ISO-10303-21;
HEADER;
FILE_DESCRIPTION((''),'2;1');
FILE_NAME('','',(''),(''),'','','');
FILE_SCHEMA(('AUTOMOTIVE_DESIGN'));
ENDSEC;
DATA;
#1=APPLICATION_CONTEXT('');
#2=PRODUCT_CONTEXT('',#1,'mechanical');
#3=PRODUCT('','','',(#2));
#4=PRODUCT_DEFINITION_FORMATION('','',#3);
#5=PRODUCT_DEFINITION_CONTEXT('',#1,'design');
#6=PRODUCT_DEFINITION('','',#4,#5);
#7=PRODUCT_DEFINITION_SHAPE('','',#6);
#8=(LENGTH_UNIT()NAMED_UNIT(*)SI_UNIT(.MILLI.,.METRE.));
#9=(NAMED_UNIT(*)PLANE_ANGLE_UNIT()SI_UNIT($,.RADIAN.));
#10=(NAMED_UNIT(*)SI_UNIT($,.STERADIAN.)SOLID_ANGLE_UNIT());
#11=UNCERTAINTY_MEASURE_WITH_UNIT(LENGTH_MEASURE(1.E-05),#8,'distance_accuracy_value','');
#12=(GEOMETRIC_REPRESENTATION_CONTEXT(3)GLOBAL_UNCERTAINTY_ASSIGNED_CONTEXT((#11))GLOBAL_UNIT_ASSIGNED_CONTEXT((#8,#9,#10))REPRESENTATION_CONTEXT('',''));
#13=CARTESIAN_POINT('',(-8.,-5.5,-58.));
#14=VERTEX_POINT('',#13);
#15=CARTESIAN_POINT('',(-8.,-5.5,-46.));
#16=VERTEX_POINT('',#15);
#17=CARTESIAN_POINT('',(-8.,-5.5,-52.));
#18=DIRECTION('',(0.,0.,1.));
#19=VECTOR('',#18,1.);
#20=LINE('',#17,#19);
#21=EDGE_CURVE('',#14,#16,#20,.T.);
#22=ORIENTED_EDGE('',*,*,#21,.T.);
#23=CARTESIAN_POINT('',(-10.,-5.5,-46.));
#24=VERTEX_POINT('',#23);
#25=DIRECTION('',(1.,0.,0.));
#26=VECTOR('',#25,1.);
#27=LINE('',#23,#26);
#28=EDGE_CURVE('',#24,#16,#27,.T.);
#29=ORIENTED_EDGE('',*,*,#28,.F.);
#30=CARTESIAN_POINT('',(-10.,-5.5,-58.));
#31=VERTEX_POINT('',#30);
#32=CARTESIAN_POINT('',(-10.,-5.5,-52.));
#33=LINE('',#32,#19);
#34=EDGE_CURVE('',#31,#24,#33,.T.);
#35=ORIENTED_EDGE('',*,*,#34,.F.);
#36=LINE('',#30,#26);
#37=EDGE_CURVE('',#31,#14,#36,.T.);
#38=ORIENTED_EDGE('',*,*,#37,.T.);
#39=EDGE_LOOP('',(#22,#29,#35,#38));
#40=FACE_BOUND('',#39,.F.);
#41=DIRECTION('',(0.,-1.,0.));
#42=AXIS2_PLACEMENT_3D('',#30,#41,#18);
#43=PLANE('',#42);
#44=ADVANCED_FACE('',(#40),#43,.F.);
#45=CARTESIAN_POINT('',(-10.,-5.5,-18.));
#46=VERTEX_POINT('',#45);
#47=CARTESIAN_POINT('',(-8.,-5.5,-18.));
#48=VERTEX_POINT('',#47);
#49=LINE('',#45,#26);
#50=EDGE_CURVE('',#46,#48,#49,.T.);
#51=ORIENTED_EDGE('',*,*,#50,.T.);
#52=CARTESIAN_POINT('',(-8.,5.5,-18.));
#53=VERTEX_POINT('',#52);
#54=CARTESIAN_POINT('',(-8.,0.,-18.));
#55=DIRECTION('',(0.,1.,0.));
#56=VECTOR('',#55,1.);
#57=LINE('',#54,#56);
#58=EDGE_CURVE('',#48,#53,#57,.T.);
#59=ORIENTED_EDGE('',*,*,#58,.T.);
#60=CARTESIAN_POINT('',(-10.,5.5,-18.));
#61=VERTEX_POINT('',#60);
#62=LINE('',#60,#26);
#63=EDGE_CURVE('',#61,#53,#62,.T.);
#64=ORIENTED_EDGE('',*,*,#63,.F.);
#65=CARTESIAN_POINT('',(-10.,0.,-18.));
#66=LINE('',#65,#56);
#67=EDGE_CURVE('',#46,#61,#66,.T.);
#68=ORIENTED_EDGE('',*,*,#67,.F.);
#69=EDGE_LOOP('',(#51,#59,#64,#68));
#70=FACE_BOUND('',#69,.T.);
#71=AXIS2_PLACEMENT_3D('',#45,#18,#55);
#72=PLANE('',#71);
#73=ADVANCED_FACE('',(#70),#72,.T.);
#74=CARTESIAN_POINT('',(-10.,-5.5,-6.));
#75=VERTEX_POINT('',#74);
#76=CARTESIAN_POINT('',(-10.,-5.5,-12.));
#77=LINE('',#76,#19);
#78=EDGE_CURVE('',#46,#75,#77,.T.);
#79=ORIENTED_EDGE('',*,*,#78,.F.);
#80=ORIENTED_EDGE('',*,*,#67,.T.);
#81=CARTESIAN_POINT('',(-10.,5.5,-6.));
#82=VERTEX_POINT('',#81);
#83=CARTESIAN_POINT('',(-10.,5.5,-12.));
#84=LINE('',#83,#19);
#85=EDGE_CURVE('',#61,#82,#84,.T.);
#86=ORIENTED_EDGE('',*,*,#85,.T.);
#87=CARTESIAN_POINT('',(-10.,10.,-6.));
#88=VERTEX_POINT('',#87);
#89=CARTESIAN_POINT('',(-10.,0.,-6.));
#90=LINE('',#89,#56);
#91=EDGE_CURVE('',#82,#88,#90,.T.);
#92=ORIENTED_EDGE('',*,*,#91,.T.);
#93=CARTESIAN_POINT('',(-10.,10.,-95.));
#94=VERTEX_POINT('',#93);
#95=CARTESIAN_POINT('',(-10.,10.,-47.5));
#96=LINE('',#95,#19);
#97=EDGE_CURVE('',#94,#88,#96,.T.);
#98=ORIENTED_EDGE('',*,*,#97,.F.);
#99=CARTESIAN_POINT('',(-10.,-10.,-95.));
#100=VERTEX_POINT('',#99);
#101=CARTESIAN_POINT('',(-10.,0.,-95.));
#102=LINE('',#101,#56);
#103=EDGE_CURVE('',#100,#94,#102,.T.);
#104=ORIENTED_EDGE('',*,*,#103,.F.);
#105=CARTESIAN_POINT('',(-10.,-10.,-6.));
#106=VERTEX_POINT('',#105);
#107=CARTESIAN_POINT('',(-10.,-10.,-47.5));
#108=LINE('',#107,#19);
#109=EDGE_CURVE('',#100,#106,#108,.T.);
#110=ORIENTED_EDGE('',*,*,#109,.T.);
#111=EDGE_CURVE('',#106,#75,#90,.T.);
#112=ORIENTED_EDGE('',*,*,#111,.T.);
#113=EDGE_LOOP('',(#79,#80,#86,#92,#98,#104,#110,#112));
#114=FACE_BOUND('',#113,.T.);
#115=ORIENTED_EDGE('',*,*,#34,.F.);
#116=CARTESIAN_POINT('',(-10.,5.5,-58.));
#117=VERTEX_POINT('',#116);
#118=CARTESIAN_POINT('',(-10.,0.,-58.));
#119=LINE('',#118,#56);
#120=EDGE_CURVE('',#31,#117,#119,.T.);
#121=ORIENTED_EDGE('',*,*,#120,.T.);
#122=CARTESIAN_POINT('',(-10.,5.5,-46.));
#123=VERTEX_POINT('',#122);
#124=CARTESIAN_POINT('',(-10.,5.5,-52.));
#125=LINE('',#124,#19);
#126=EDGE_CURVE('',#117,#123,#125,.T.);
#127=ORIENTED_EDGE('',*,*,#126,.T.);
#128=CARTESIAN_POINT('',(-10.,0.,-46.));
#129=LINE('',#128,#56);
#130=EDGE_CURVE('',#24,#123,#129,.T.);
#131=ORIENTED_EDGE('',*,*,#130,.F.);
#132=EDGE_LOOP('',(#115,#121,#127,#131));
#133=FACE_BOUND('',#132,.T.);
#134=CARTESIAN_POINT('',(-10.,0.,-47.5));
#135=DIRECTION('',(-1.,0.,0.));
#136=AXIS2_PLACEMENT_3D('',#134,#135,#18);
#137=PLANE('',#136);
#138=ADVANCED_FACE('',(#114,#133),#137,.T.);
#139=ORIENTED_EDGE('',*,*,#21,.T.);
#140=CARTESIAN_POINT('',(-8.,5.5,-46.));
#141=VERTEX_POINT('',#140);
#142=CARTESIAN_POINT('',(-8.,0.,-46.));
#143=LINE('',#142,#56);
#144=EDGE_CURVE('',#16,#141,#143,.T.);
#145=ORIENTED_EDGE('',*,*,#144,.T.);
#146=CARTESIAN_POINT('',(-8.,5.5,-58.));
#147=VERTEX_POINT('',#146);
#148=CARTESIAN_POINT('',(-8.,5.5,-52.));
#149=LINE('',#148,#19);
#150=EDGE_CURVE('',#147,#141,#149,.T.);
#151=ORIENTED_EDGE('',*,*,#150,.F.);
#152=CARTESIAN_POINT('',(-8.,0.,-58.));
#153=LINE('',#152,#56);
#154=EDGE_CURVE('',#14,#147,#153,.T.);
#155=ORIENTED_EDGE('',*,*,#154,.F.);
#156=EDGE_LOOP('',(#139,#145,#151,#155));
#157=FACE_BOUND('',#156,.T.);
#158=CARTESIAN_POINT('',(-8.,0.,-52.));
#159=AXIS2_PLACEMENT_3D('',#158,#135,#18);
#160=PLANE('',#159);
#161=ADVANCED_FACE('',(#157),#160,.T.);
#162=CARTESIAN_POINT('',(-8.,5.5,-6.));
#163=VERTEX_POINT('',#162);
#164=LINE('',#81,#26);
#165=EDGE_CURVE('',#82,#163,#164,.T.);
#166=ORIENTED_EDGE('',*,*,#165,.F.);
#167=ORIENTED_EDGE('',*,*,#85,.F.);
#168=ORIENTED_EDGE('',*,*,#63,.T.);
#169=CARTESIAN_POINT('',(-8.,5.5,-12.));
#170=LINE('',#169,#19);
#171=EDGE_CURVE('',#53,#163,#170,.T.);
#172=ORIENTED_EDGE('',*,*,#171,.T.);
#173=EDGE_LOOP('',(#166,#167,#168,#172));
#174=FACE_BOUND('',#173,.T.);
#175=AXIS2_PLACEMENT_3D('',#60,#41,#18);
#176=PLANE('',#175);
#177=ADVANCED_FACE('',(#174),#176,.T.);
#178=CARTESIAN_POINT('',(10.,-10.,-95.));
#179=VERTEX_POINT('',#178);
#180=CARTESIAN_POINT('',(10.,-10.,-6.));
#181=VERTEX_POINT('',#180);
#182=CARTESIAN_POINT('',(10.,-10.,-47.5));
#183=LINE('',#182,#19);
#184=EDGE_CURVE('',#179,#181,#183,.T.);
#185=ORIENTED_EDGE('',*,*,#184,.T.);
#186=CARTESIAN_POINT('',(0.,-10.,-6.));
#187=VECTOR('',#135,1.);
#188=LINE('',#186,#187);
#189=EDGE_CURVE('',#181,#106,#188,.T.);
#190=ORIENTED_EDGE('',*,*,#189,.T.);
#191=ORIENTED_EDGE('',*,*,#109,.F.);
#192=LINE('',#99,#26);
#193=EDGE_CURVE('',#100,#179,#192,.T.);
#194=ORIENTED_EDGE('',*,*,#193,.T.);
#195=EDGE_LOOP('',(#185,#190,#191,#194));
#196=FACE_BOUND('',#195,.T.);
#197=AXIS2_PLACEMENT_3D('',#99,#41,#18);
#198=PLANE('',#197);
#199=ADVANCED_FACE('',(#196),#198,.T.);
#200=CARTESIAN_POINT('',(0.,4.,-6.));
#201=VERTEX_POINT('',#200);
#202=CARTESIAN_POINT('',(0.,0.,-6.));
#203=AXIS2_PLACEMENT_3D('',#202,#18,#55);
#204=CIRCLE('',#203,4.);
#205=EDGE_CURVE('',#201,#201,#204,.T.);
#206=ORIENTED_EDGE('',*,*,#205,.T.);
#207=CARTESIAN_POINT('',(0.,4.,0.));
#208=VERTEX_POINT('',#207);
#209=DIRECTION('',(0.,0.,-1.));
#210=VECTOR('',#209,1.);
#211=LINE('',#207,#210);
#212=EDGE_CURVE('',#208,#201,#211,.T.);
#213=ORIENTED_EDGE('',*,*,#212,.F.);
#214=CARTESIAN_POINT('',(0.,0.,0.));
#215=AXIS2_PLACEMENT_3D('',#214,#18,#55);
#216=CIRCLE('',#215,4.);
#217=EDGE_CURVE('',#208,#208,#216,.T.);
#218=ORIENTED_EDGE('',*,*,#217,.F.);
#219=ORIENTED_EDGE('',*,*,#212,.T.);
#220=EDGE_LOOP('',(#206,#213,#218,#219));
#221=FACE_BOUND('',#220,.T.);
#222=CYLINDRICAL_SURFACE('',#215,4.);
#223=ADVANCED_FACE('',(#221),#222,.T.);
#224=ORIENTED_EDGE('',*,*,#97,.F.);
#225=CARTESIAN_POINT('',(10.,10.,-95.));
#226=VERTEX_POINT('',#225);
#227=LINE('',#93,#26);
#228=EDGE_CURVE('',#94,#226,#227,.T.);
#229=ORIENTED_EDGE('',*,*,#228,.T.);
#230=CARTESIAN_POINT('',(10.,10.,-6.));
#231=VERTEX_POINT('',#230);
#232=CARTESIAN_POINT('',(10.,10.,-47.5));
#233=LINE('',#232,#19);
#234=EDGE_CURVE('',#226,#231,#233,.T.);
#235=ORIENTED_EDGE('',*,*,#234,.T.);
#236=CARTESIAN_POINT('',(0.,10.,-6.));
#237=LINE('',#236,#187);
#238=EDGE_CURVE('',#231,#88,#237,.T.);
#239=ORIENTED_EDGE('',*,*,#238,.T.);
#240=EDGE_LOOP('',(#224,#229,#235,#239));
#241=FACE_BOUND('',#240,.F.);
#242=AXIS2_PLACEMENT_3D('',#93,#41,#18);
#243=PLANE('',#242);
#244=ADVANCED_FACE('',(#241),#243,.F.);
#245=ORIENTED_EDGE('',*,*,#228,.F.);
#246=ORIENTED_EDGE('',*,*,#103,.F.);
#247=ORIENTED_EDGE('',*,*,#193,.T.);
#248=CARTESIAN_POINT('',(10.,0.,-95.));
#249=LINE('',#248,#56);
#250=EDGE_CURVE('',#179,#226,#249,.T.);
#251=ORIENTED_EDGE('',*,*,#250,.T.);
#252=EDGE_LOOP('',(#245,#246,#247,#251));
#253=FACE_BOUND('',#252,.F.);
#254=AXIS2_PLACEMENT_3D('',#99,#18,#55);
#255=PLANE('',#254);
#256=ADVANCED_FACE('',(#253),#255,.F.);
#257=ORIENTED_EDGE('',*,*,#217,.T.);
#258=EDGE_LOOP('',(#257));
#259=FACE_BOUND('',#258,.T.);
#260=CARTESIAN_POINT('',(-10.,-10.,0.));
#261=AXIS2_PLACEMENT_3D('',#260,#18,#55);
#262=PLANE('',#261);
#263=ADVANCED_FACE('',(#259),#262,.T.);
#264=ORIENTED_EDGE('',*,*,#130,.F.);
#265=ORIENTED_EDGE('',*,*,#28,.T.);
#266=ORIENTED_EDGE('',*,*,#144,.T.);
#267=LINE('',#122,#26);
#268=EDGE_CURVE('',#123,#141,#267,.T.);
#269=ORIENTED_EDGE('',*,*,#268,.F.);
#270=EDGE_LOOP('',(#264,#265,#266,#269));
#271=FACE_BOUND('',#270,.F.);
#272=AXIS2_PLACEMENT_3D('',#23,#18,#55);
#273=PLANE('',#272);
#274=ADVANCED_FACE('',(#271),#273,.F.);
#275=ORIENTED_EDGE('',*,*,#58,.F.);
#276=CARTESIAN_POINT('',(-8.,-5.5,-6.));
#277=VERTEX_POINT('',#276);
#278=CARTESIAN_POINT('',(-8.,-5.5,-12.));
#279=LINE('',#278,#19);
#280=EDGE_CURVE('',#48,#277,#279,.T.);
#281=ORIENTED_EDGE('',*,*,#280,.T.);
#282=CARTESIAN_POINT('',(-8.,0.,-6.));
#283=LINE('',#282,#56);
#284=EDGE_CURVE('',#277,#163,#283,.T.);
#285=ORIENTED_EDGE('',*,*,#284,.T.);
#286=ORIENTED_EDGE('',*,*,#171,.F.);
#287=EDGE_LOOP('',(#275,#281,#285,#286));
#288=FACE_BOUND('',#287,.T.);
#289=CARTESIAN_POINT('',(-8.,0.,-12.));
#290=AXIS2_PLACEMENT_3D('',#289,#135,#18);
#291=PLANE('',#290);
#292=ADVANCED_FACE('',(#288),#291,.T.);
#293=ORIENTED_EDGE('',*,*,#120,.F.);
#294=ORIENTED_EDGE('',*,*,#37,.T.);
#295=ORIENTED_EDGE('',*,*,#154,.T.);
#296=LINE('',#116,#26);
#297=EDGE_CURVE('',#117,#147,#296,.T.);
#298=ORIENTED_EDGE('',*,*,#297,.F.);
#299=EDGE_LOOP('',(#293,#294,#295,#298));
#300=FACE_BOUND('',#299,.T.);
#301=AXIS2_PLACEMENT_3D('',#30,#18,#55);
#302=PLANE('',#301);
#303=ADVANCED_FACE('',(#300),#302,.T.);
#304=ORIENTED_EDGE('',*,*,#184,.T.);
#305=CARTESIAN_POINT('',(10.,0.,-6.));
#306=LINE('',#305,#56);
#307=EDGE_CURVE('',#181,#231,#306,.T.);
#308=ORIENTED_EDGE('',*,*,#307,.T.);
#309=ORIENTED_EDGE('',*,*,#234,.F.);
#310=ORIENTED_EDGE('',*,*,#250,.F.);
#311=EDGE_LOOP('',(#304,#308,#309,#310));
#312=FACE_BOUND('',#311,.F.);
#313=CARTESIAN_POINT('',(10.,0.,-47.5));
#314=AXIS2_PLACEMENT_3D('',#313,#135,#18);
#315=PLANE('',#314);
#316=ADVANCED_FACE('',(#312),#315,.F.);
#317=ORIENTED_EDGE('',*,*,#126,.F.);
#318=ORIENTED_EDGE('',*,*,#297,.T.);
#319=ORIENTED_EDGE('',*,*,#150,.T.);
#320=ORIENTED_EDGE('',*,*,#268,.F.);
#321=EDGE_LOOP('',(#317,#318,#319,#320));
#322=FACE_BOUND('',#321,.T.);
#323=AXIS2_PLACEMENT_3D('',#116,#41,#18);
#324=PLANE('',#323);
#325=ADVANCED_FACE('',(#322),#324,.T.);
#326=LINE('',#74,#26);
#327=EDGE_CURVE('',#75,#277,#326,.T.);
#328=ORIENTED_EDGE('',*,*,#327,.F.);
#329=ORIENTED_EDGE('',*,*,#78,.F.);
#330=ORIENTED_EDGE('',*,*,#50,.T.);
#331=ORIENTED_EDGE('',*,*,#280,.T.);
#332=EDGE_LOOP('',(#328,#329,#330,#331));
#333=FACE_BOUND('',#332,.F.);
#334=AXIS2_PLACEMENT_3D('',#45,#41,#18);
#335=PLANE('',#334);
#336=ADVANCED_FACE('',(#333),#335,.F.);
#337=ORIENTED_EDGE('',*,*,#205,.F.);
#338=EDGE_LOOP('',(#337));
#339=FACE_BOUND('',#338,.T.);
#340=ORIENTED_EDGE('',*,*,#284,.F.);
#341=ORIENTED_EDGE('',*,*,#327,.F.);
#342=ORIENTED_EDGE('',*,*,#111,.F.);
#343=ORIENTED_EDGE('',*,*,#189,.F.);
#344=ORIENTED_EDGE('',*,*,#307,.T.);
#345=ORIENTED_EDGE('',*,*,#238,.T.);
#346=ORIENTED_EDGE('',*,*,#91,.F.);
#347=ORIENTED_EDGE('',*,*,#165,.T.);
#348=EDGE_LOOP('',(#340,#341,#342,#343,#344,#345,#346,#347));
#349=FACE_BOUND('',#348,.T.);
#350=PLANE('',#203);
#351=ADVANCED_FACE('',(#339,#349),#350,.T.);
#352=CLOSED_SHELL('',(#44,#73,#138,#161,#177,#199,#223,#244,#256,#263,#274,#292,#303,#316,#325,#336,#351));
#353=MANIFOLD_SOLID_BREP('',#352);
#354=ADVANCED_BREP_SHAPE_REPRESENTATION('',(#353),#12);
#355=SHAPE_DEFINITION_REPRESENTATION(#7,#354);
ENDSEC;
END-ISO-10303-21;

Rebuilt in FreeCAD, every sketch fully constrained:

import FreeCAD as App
import Part
import Sketcher

V = App.Vector
Q = App.Units.Quantity


def add_polygon(sketch, points):
    """Adds a closed chain of lines whose ends are joined by coincident constraints."""
    first, n = sketch.GeometryCount, len(points)
    for a, b in zip(points, points[1:] + points[:1]):
        sketch.addGeometry(Part.LineSegment(App.Vector(*a, 0), App.Vector(*b, 0)), False)
    for i in range(n):
        sketch.addConstraint(Sketcher.Constraint("Coincident", first + i, 2, first + (i + 1) % n, 1))

doc = App.newDocument("Part")
body = doc.addObject("PartDesign::Body", "Body")

# Sketch on XY plane
sketch1 = body.newObject("Sketcher::SketchObject", "Sketch")
sketch1.AttachmentSupport = (doc.getObject("XY_Plane"), [""])
sketch1.MapMode = "FlatFace"
add_polygon(sketch1, [(-47.5, 10), (-47.5, -10), (47.5, -10), (47.5, 10)])  # lines 0-3
sketch1.addConstraint([
    Sketcher.Constraint("Vertical", 0),
    Sketcher.Constraint("Horizontal", 1),
    Sketcher.Constraint("Vertical", 2),
    Sketcher.Constraint("Horizontal", 3),
    Sketcher.Constraint("Symmetric", 0, 2, 2, 2, -1, 1),
    Sketcher.Constraint("DistanceX", 1, 1, 1, 2, Q("95 mm")),
    Sketcher.Constraint("DistanceY", 0, 2, 0, 1, Q("20 mm")),
])
pad1 = body.newObject("PartDesign::Pad", "Pad")
pad1.Profile = sketch1
pad1.Length = 20
pad1.Reversed = True

# Sketch on YZ plane
sketch2 = body.newObject("Sketcher::SketchObject", "Sketch001")
sketch2.AttachmentSupport = (doc.getObject("YZ_Plane"), [""])
sketch2.MapMode = "FlatFace"
sketch2.AttachmentOffset = App.Placement(V(0, 0, 47.5), App.Rotation())
add_polygon(sketch2, [(-10, 0), (-10, -20), (10, -20), (10, 0)])  # lines 0-3
sketch2.addGeometry(Part.Circle(V(0, -10, 0), V(0, 0, 1), 4), False)  # 4
sketch2.addConstraint([
    Sketcher.Constraint("Vertical", 0),
    Sketcher.Constraint("Horizontal", 1),
    Sketcher.Constraint("Vertical", 2),
    Sketcher.Constraint("Horizontal", 3),
    Sketcher.Constraint("Symmetric", 2, 2, 3, 2, -1, 1),
    Sketcher.Constraint("PointOnObject", 4, 3, -2),
    Sketcher.Constraint("Equal", 3, 0),
    Sketcher.Constraint("Diameter", 4, Q("8 mm")),
    Sketcher.Constraint("DistanceX", 1, 1, 1, 2, Q("20 mm")),
    Sketcher.Constraint("DistanceY", 4, 3, -1, 1, Q("10 mm")),
])
pocket1 = body.newObject("PartDesign::Pocket", "Pocket")
pocket1.Profile = sketch2
pocket1.Length = 6

# Sketch on XY plane
sketch3 = body.newObject("Sketcher::SketchObject", "Sketch002")
sketch3.AttachmentSupport = (doc.getObject("XY_Plane"), [""])
sketch3.MapMode = "FlatFace"
add_polygon(sketch3, [(29.5, 5.5), (29.5, -5.5), (41.5, -5.5), (41.5, 5.5)])  # lines 0-3
add_polygon(sketch3, [(-10.5, 5.5), (-10.5, -5.5), (1.5, -5.5), (1.5, 5.5)])  # lines 4-7
sketch3.addConstraint([
    Sketcher.Constraint("Vertical", 0),
    Sketcher.Constraint("Horizontal", 1),
    Sketcher.Constraint("Vertical", 2),
    Sketcher.Constraint("Horizontal", 3),
    Sketcher.Constraint("Vertical", 4),
    Sketcher.Constraint("Horizontal", 5),
    Sketcher.Constraint("Vertical", 6),
    Sketcher.Constraint("Horizontal", 7),
    Sketcher.Constraint("Horizontal", 1, 2, 4, 2),
    Sketcher.Constraint("Horizontal", 3, 2, 6, 2),
    Sketcher.Constraint("Equal", 3, 5),
    Sketcher.Constraint("DistanceX", 1, 1, 1, 2, Q("12 mm")),
    Sketcher.Constraint("DistanceY", 0, 2, 0, 1, Q("11 mm")),
    Sketcher.Constraint("DistanceX", 4, 2, 0, 2, Q("40 mm")),
    Sketcher.Constraint("DistanceX", -1, 1, 0, 2, Q("29.5 mm")),
    Sketcher.Constraint("DistanceY", 0, 2, -1, 1, Q("5.5 mm")),
])
pocket2 = body.newObject("PartDesign::Pocket", "Pocket001")
pocket2.Profile = sketch3
pocket2.Length = 2
body2 = doc.addObject("PartDesign::Body", "Body001")
doc.recompute()

body.Placement = App.Placement(V(-10, 0, -47.5), App.Rotation(V(0, 1, 0), 270))
boolean = body2.newObject("PartDesign::Boolean", "Boolean")
boolean.Type = "Fuse"
boolean.addObjects([body])

doc.recompute()
